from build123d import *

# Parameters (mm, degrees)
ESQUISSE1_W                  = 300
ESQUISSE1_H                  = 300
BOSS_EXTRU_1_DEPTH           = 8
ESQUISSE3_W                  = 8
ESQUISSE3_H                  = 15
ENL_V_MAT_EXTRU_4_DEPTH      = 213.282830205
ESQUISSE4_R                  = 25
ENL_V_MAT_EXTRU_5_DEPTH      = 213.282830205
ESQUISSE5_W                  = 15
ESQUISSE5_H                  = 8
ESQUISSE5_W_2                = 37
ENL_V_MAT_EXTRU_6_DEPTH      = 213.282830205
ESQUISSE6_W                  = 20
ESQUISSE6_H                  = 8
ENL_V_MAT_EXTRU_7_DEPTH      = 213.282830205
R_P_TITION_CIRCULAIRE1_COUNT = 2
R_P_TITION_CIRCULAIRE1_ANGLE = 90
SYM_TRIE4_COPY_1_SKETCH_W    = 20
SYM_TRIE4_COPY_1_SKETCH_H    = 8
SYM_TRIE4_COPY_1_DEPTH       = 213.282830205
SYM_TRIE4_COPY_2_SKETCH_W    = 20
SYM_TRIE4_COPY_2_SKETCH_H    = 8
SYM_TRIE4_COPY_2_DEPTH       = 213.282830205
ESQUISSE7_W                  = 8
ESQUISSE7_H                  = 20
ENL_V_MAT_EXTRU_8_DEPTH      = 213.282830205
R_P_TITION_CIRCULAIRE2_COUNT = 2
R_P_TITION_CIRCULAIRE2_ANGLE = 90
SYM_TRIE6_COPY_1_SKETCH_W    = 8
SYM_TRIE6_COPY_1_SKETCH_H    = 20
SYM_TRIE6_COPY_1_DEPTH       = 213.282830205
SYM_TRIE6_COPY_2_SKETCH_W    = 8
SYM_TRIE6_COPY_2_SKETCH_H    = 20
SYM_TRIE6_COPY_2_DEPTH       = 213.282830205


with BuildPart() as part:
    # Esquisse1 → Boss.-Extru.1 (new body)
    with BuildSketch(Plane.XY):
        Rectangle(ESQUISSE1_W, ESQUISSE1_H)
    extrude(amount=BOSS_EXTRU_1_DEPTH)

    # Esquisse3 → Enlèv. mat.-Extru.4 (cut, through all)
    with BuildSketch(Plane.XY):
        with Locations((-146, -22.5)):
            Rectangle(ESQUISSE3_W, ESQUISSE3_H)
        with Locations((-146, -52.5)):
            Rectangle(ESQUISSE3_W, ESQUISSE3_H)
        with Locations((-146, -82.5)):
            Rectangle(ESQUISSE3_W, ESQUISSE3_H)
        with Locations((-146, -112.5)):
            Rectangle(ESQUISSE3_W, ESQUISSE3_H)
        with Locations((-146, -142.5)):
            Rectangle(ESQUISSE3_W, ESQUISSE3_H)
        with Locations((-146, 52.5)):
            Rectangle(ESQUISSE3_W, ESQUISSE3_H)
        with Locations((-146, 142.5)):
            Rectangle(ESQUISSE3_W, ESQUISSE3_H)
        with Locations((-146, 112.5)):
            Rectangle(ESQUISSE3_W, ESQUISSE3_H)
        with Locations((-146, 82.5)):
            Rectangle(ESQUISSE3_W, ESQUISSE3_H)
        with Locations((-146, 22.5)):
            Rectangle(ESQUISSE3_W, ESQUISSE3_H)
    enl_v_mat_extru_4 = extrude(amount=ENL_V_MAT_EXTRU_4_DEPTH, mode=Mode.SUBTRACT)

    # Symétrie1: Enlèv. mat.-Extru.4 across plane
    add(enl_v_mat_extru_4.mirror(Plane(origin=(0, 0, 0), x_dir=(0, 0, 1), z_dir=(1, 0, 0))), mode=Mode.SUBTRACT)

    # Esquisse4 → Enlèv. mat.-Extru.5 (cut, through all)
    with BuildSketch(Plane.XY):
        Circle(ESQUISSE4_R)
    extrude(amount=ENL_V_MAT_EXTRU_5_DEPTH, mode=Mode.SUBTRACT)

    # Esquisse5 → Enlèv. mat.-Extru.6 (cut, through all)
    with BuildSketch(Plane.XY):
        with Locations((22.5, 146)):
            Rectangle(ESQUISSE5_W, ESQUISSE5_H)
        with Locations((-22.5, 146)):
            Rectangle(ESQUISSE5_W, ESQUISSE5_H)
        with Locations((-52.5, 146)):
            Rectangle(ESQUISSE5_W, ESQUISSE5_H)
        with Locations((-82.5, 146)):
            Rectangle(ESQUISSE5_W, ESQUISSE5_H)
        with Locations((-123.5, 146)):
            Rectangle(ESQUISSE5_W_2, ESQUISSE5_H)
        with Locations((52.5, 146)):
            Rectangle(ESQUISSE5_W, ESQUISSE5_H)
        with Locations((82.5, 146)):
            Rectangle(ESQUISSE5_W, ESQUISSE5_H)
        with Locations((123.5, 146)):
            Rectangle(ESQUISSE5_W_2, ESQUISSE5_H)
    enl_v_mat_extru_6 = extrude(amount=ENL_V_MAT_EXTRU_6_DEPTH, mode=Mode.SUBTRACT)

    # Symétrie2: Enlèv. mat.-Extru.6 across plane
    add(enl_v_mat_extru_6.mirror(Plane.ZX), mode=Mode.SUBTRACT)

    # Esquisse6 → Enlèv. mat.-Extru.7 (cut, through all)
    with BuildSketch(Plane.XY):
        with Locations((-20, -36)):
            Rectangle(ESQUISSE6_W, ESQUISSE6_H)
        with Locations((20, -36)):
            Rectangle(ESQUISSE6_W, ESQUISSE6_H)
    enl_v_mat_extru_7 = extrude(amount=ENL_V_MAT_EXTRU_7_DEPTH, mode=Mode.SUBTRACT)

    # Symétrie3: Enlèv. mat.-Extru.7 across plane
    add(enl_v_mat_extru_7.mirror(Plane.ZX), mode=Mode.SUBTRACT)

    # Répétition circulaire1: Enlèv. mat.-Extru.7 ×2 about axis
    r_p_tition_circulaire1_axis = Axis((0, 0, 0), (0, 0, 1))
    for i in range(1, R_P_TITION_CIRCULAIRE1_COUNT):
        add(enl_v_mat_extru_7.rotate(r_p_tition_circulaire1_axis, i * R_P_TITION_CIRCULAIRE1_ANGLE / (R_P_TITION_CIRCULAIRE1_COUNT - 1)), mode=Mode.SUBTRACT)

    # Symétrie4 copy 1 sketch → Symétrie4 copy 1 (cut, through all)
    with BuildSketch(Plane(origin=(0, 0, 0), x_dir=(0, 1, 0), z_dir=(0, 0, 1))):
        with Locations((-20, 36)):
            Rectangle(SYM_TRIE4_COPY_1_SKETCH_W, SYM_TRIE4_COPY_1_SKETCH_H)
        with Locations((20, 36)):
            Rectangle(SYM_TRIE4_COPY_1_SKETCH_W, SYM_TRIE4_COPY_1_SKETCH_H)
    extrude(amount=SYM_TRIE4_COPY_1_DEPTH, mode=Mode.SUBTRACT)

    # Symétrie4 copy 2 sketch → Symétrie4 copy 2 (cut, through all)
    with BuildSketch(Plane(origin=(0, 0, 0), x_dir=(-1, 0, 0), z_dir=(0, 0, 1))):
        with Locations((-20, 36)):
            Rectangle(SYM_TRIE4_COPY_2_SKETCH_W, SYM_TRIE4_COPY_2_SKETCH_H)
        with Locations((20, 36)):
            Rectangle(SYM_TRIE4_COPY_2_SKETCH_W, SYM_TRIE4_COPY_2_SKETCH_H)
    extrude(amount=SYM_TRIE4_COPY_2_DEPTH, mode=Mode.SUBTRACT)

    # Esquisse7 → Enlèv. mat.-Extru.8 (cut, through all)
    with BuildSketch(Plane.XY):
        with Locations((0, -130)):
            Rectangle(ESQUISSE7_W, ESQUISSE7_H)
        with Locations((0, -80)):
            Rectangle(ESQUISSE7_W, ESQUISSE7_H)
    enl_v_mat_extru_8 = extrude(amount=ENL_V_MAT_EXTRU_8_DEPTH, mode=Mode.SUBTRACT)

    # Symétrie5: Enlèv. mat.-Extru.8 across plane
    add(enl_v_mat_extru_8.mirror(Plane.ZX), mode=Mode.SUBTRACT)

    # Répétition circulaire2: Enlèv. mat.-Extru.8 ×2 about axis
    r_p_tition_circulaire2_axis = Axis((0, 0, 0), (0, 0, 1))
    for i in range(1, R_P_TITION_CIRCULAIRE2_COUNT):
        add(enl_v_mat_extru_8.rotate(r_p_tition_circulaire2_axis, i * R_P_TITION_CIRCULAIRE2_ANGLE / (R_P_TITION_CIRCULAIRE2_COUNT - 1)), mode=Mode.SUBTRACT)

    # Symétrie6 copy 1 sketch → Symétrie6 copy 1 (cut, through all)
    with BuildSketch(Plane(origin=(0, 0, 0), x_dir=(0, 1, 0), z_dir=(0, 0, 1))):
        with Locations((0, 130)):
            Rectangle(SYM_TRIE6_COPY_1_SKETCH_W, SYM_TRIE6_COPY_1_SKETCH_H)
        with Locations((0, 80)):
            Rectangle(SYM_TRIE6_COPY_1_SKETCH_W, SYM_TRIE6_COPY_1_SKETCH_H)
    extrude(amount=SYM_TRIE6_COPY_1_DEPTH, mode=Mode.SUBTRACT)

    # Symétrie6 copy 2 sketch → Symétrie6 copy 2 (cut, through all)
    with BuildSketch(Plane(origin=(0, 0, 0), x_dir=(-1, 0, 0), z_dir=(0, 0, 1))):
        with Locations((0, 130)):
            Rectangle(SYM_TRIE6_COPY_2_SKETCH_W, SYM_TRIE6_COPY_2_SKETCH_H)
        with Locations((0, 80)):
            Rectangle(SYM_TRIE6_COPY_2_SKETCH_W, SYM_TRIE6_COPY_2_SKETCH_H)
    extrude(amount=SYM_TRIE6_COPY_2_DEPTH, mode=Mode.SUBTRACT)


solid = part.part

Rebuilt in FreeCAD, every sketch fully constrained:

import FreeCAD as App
import Part
import Sketcher
from FreeCAD import Vector
Q = App.Units.Quantity


def add_polygon(sketch, points):
    """Adds a closed chain of lines whose ends are joined by coincident constraints."""
    first, n = sketch.GeometryCount, len(points)
    for a, b in zip(points, points[1:] + points[:1]):
        sketch.addGeometry(Part.LineSegment(App.Vector(*a, 0), App.Vector(*b, 0)), False)
    for i in range(n):
        sketch.addConstraint(Sketcher.Constraint("Coincident", first + i, 2, first + (i + 1) % n, 1))

doc = App.newDocument("Part")
body = doc.addObject("PartDesign::Body", "Body")

# Sketch on XY plane
sketch1 = body.newObject("Sketcher::SketchObject", "Sketch")
sketch1.AttachmentSupport = (doc.getObject("XY_Plane"), [""])
sketch1.MapMode = "FlatFace"
add_polygon(sketch1, [(-150, 150), (-150, -150), (150, -150), (150, 150)])  # lines 0-3
sketch1.addConstraint([
    Sketcher.Constraint("Vertical", 0),
    Sketcher.Constraint("Horizontal", 1),
    Sketcher.Constraint("Vertical", 2),
    Sketcher.Constraint("Horizontal", 3),
    Sketcher.Constraint("Symmetric", 0, 2, 2, 2, -1, 1),
    Sketcher.Constraint("Equal", 3, 0),
    Sketcher.Constraint("DistanceX", 1, 1, 1, 2, Q("300 mm")),
])
pad1 = body.newObject("PartDesign::Pad", "Pad")
pad1.Profile = sketch1
pad1.Length = 8

# Sketch on XY plane
sketch2 = body.newObject("Sketcher::SketchObject", "Sketch001")
sketch2.AttachmentSupport = (doc.getObject("XY_Plane"), [""])
sketch2.MapMode = "FlatFace"
add_polygon(sketch2, [(-150, -15), (-150, -30), (-142, -30), (-142, -15)])  # lines 0-3
add_polygon(sketch2, [(-150, -45), (-150, -60), (-142, -60), (-142, -45)])  # lines 4-7
add_polygon(sketch2, [(-150, -75), (-150, -90), (-142, -90), (-142, -75)])  # lines 8-11
add_polygon(sketch2, [(-150, -105), (-150, -120), (-142, -120), (-142, -105)])  # lines 12-15
add_polygon(sketch2, [(-150, -135), (-150, -150), (-142, -150), (-142, -135)])  # lines 16-19
add_polygon(sketch2, [(-150, 60), (-150, 45), (-142, 45), (-142, 60)])  # lines 20-23
add_polygon(sketch2, [(-150, 150), (-150, 135), (-142, 135), (-142, 150)])  # lines 24-27
add_polygon(sketch2, [(-150, 120), (-150, 105), (-142, 105), (-142, 120)])  # lines 28-31
add_polygon(sketch2, [(-150, 90), (-150, 75), (-142, 75), (-142, 90)])  # lines 32-35
add_polygon(sketch2, [(-150, 30), (-150, 15), (-142, 15), (-142, 30)])  # lines 36-39
sketch2.addConstraint([
    Sketcher.Constraint("Vertical", 0),
    Sketcher.Constraint("Horizontal", 1),
    Sketcher.Constraint("Vertical", 2),
    Sketcher.Constraint("Horizontal", 3),
    Sketcher.Constraint("Vertical", 4),
    Sketcher.Constraint("Horizontal", 5),
    Sketcher.Constraint("Vertical", 6),
    Sketcher.Constraint("Horizontal", 7),
    Sketcher.Constraint("Vertical", 8),
    Sketcher.Constraint("Horizontal", 9),
    Sketcher.Constraint("Vertical", 10),
    Sketcher.Constraint("Horizontal", 11),
    Sketcher.Constraint("Vertical", 12),
    Sketcher.Constraint("Horizontal", 13),
    Sketcher.Constraint("Vertical", 14),
    Sketcher.Constraint("Horizontal", 15),
    Sketcher.Constraint("Vertical", 16),
    Sketcher.Constraint("Horizontal", 17),
    Sketcher.Constraint("Vertical", 18),
    Sketcher.Constraint("Horizontal", 19),
    Sketcher.Constraint("Vertical", 20),
    Sketcher.Constraint("Horizontal", 21),
    Sketcher.Constraint("Vertical", 22),
    Sketcher.Constraint("Horizontal", 23),
    Sketcher.Constraint("Vertical", 24),
    Sketcher.Constraint("Horizontal", 25),
    Sketcher.Constraint("Vertical", 26),
    Sketcher.Constraint("Horizontal", 27),
    Sketcher.Constraint("Vertical", 28),
    Sketcher.Constraint("Horizontal", 29),
    Sketcher.Constraint("Vertical", 30),
    Sketcher.Constraint("Horizontal", 31),
    Sketcher.Constraint("Vertical", 32),
    Sketcher.Constraint("Horizontal", 33),
    Sketcher.Constraint("Vertical", 34),
    Sketcher.Constraint("Horizontal", 35),
    Sketcher.Constraint("Vertical", 36),
    Sketcher.Constraint("Horizontal", 37),
    Sketcher.Constraint("Vertical", 38),
    Sketcher.Constraint("Horizontal", 39),
    Sketcher.Constraint("Symmetric", 7, 2, 20, 2, -1),
    Sketcher.Constraint("Symmetric", 5, 2, 22, 2, -1),
    Sketcher.Constraint("Symmetric", 19, 2, 24, 2, -1),
    Sketcher.Constraint("Symmetric", 17, 2, 26, 2, -1),
    Sketcher.Constraint("Symmetric", 15, 2, 28, 2, -1),
    Sketcher.Constraint("Symmetric", 13, 2, 30, 2, -1),
    Sketcher.Constraint("Symmetric", 11, 2, 32, 2, -1),
    Sketcher.Constraint("Symmetric", 9, 2, 34, 2, -1),
    Sketcher.Constraint("Symmetric", 3, 2, 36, 2, -1),
    Sketcher.Constraint("Symmetric", 1, 2, 38, 2, -1),
    Sketcher.Constraint("Vertical", 3, 2, 4, 2),
    Sketcher.Constraint("Vertical", 2, 2, 5, 2),
    Sketcher.Constraint("Vertical", 7, 2, 8, 2),
    Sketcher.Constraint("Vertical", 6, 2, 9, 2),
    Sketcher.Constraint("Vertical", 11, 2, 12, 2),
    Sketcher.Constraint("Vertical", 10, 2, 13, 2),
    Sketcher.Constraint("Vertical", 15, 2, 16, 2),
    Sketcher.Constraint("Vertical", 14, 2, 17, 2),
    Sketcher.Constraint("Equal", 2, 4),
    Sketcher.Constraint("Equal", 6, 8),
    Sketcher.Constraint("Equal", 10, 12),
    Sketcher.Constraint("Equal", 14, 16),
    Sketcher.Constraint("DistanceX", 1, 1, 1, 2, Q("8 mm")),
    Sketcher.Constraint("DistanceY", 0, 2, 0, 1, Q("15 mm")),
    Sketcher.Constraint("DistanceX", 0, 2, -1, 1, Q("150 mm")),
    Sketcher.Constraint("DistanceY", 0, 2, -1, 1, Q("30 mm")),
    Sketcher.Constraint("DistanceY", 4, 2, -1, 1, Q("60 mm")),
    Sketcher.Constraint("DistanceY", 8, 2, -1, 1, Q("90 mm")),
    Sketcher.Constraint("DistanceY", 12, 2, -1, 1, Q("120 mm")),
    Sketcher.Constraint("DistanceY", 16, 2, -1, 1, Q("150 mm")),
])
pocket1 = body.newObject("PartDesign::Pocket", "Pocket")
pocket1.Profile = sketch2
pocket1.Type = "ThroughAll"
pocket1.Reversed = True
doc.recompute()

mirrored = body.newObject("PartDesign::Mirrored", "Mirrored")
mirrored.Originals = [pocket1]
mirrored.MirrorPlane = (doc.getObject("YZ_Plane"), [""])
body.Tip = mirrored

# Sketch on XY plane
sketch3 = body.newObject("Sketcher::SketchObject", "Sketch002")
sketch3.AttachmentSupport = (doc.getObject("XY_Plane"), [""])
sketch3.MapMode = "FlatFace"
sketch3.addGeometry(Part.Circle(Vector(0, 0, 0), Vector(0, 0, 1), 25), False)
sketch3.addConstraint([
    Sketcher.Constraint("Coincident", 0, 3, -1, 1),
    Sketcher.Constraint("Diameter", 0, Q("50 mm")),
])
pocket2 = body.newObject("PartDesign::Pocket", "Pocket001")
pocket2.Profile = sketch3
pocket2.Type = "ThroughAll"
pocket2.Reversed = True

# Sketch on XY plane
sketch4 = body.newObject("Sketcher::SketchObject", "Sketch003")
sketch4.AttachmentSupport = (doc.getObject("XY_Plane"), [""])
sketch4.MapMode = "FlatFace"
add_polygon(sketch4, [(15, 150), (15, 142), (30, 142), (30, 150)])  # lines 0-3
add_polygon(sketch4, [(-30, 150), (-30, 142), (-15, 142), (-15, 150)])  # lines 4-7
add_polygon(sketch4, [(-60, 150), (-60, 142), (-45, 142), (-45, 150)])  # lines 8-11
add_polygon(sketch4, [(-90, 150), (-90, 142), (-75, 142), (-75, 150)])  # lines 12-15
add_polygon(sketch4, [(-142, 150), (-142, 142), (-105, 142), (-105, 150)])  # lines 16-19
add_polygon(sketch4, [(45, 150), (45, 142), (60, 142), (60, 150)])  # lines 20-23
add_polygon(sketch4, [(75, 150), (75, 142), (90, 142), (90, 150)])  # lines 24-27
add_polygon(sketch4, [(105, 150), (105, 142), (142, 142), (142, 150)])  # lines 28-31
sketch4.addConstraint([
    Sketcher.Constraint("Vertical", 0),
    Sketcher.Constraint("Horizontal", 1),
    Sketcher.Constraint("Vertical", 2),
    Sketcher.Constraint("Horizontal", 3),
    Sketcher.Constraint("Vertical", 4),
    Sketcher.Constraint("Horizontal", 5),
    Sketcher.Constraint("Vertical", 6),
    Sketcher.Constraint("Horizontal", 7),
    Sketcher.Constraint("Vertical", 8),
    Sketcher.Constraint("Horizontal", 9),
    Sketcher.Constraint("Vertical", 10),
    Sketcher.Constraint("Horizontal", 11),
    Sketcher.Constraint("Vertical", 12),
    Sketcher.Constraint("Horizontal", 13),
    Sketcher.Constraint("Vertical", 14),
    Sketcher.Constraint("Horizontal", 15),
    Sketcher.Constraint("Vertical", 16),
    Sketcher.Constraint("Horizontal", 17),
    Sketcher.Constraint("Vertical", 18),
    Sketcher.Constraint("Horizontal", 19),
    Sketcher.Constraint("Vertical", 20),
    Sketcher.Constraint("Horizontal", 21),
    Sketcher.Constraint("Vertical", 22),
    Sketcher.Constraint("Horizontal", 23),
    Sketcher.Constraint("Vertical", 24),
    Sketcher.Constraint("Horizontal", 25),
    Sketcher.Constraint("Vertical", 26),
    Sketcher.Constraint("Horizontal", 27),
    Sketcher.Constraint("Vertical", 28),
    Sketcher.Constraint("Horizontal", 29),
    Sketcher.Constraint("Vertical", 30),
    Sketcher.Constraint("Horizontal", 31),
    Sketcher.Constraint("Symmetric", 1, 2, 4, 2, -2),
    Sketcher.Constraint("Symmetric", 3, 2, 6, 2, -2),
    Sketcher.Constraint("Symmetric", 9, 2, 20, 2, -2),
    Sketcher.Constraint("Symmetric", 11, 2, 22, 2, -2),
    Sketcher.Constraint("Symmetric", 13, 2, 24, 2, -2),
    Sketcher.Constraint("Symmetric", 15, 2, 26, 2, -2),
    Sketcher.Constraint("Symmetric", 17, 2, 28, 2, -2),
    Sketcher.Constraint("Symmetric", 19, 2, 30, 2, -2),
    Sketcher.Constraint("Horizontal", 5, 2, 8, 2),
    Sketcher.Constraint("Horizontal", 7, 2, 10, 2),
    Sketcher.Constraint("Horizontal", 9, 2, 12, 2),
    Sketcher.Constraint("Horizontal", 11, 2, 14, 2),
    Sketcher.Constraint("Horizontal", 13, 2, 16, 2),
    Sketcher.Constraint("Horizontal", 15, 2, 18, 2),
    Sketcher.Constraint("Equal", 7, 9),
    Sketcher.Constraint("Equal", 11, 13),
    Sketcher.Constraint("DistanceX", 1, 1, 1, 2, Q("15 mm")),
    Sketcher.Constraint("DistanceX", 17, 1, 17, 2, Q("37 mm")),
    Sketcher.Constraint("DistanceY", 0, 2, 0, 1, Q("8 mm")),
    Sketcher.Constraint("DistanceX", -1, 1, 0, 2, Q("15 mm")),
    Sketcher.Constraint("DistanceY", -1, 1, 0, 2, Q("142 mm")),
    Sketcher.Constraint("DistanceX", 8, 2, -1, 1, Q("60 mm")),
    Sketcher.Constraint("DistanceX", 12, 2, -1, 1, Q("90 mm")),
    Sketcher.Constraint("DistanceX", 16, 2, -1, 1, Q("142 mm")),
])
pocket3 = body.newObject("PartDesign::Pocket", "Pocket002")
pocket3.Profile = sketch4
pocket3.Type = "ThroughAll"
pocket3.Reversed = True
doc.recompute()

mirrored2 = body.newObject("PartDesign::Mirrored", "Mirrored001")
mirrored2.Originals = [pocket3]
mirrored2.MirrorPlane = (doc.getObject("XZ_Plane"), [""])
body.Tip = mirrored2

# Sketch on XY plane
sketch5 = body.newObject("Sketcher::SketchObject", "Sketch004")
sketch5.AttachmentSupport = (doc.getObject("XY_Plane"), [""])
sketch5.MapMode = "FlatFace"
add_polygon(sketch5, [(-30, -32), (-30, -40), (-10, -40), (-10, -32)])  # lines 0-3
add_polygon(sketch5, [(10, -32), (10, -40), (30, -40), (30, -32)])  # lines 4-7
sketch5.addConstraint([
    Sketcher.Constraint("Vertical", 0),
    Sketcher.Constraint("Horizontal", 1),
    Sketcher.Constraint("Vertical", 2),
    Sketcher.Constraint("Horizontal", 3),
    Sketcher.Constraint("Vertical", 4),
    Sketcher.Constraint("Horizontal", 5),
    Sketcher.Constraint("Vertical", 6),
    Sketcher.Constraint("Horizontal", 7),
    Sketcher.Constraint("Symmetric", 1, 2, 4, 2, -2),
    Sketcher.Constraint("Symmetric", 3, 2, 6, 2, -2),
    Sketcher.Constraint("DistanceX", 1, 1, 1, 2, Q("20 mm")),
    Sketcher.Constraint("DistanceY", 0, 2, 0, 1, Q("8 mm")),
    Sketcher.Constraint("DistanceX", 0, 2, -1, 1, Q("30 mm")),
    Sketcher.Constraint("DistanceY", 0, 2, -1, 1, Q("40 mm")),
])
pocket4 = body.newObject("PartDesign::Pocket", "Pocket003")
pocket4.Profile = sketch5
pocket4.Type = "ThroughAll"
pocket4.Reversed = True
doc.recompute()

mirrored3 = body.newObject("PartDesign::Mirrored", "Mirrored002")
mirrored3.Originals = [pocket4]
mirrored3.MirrorPlane = (doc.getObject("XZ_Plane"), [""])
body.Tip = mirrored3
doc.recompute()

polarpattern = body.newObject("PartDesign::PolarPattern", "PolarPattern")
polarpattern.Originals = [pocket4]
polarpattern.Axis = (doc.getObject("Z_Axis"), [""])
polarpattern.Angle = 90
polarpattern.Occurrences = 2
body.Tip = polarpattern

# Sketch on XY plane
sketch6 = body.newObject("Sketcher::SketchObject", "Sketch005")
sketch6.AttachmentSupport = (doc.getObject("XY_Plane"), [""])
sketch6.MapMode = "FlatFace"
add_polygon(sketch6, [(-40, -30), (-32, -30), (-32, -10), (-40, -10)])  # lines 0-3
add_polygon(sketch6, [(-40, 10), (-32, 10), (-32, 30), (-40, 30)])  # lines 4-7
sketch6.addConstraint([
    Sketcher.Constraint("Horizontal", 0),
    Sketcher.Constraint("Vertical", 1),
    Sketcher.Constraint("Horizontal", 2),
    Sketcher.Constraint("Vertical", 3),
    Sketcher.Constraint("Horizontal", 4),
    Sketcher.Constraint("Vertical", 5),
    Sketcher.Constraint("Horizontal", 6),
    Sketcher.Constraint("Vertical", 7),
    Sketcher.Constraint("Symmetric", 1, 2, 4, 2, -1),
    Sketcher.Constraint("Symmetric", 3, 2, 6, 2, -1),
    Sketcher.Constraint("DistanceX", 0, 1, 0, 2, Q("8 mm")),
    Sketcher.Constraint("DistanceY", 1, 1, 1, 2, Q("20 mm")),
    Sketcher.Constraint("DistanceX", 0, 2, -1, 1, Q("32 mm")),
    Sketcher.Constraint("DistanceY", 0, 2, -1, 1, Q("30 mm")),
])
pocket5 = body.newObject("PartDesign::Pocket", "Pocket004")
pocket5.Profile = sketch6
pocket5.Type = "ThroughAll"
pocket5.Reversed = True

# Sketch on XY plane
sketch7 = body.newObject("Sketcher::SketchObject", "Sketch006")
sketch7.AttachmentSupport = (doc.getObject("XY_Plane"), [""])
sketch7.MapMode = "FlatFace"
add_polygon(sketch7, [(30, -40), (30, -32), (10, -32), (10, -40)])  # lines 0-3
add_polygon(sketch7, [(-10, -40), (-10, -32), (-30, -32), (-30, -40)])  # lines 4-7
sketch7.addConstraint([
    Sketcher.Constraint("Vertical", 0),
    Sketcher.Constraint("Horizontal", 1),
    Sketcher.Constraint("Vertical", 2),
    Sketcher.Constraint("Horizontal", 3),
    Sketcher.Constraint("Vertical", 4),
    Sketcher.Constraint("Horizontal", 5),
    Sketcher.Constraint("Vertical", 6),
    Sketcher.Constraint("Horizontal", 7),
    Sketcher.Constraint("Symmetric", 1, 2, 4, 2, -2),
    Sketcher.Constraint("Symmetric", 3, 2, 6, 2, -2),
    Sketcher.Constraint("DistanceX", 1, 2, 1, 1, Q("20 mm")),
    Sketcher.Constraint("DistanceY", 0, 1, 0, 2, Q("8 mm")),
    Sketcher.Constraint("DistanceX", -1, 1, 0, 2, Q("30 mm")),
    Sketcher.Constraint("DistanceY", 0, 2, -1, 1, Q("32 mm")),
])
pocket6 = body.newObject("PartDesign::Pocket", "Pocket005")
pocket6.Profile = sketch7
pocket6.Type = "ThroughAll"
pocket6.Reversed = True

# Sketch on XY plane
sketch8 = body.newObject("Sketcher::SketchObject", "Sketch007")
sketch8.AttachmentSupport = (doc.getObject("XY_Plane"), [""])
sketch8.MapMode = "FlatFace"
add_polygon(sketch8, [(-4, -120), (-4, -140), (4, -140), (4, -120)])  # lines 0-3
add_polygon(sketch8, [(-4, -70), (-4, -90), (4, -90), (4, -70)])  # lines 4-7
sketch8.addConstraint([
    Sketcher.Constraint("Vertical", 0),
    Sketcher.Constraint("Horizontal", 1),
    Sketcher.Constraint("Vertical", 2),
    Sketcher.Constraint("Horizontal", 3),
    Sketcher.Constraint("Vertical", 4),
    Sketcher.Constraint("Horizontal", 5),
    Sketcher.Constraint("Vertical", 6),
    Sketcher.Constraint("Horizontal", 7),
    Sketcher.Constraint("Vertical", 3, 2, 4, 2),
    Sketcher.Constraint("Vertical", 2, 2, 5, 2),
    Sketcher.Constraint("Equal", 2, 4),
    Sketcher.Constraint("DistanceX", 1, 1, 1, 2, Q("8 mm")),
    Sketcher.Constraint("DistanceY", 0, 2, 0, 1, Q("20 mm")),
    Sketcher.Constraint("DistanceX", 0, 2, -1, 1, Q("4 mm")),
    Sketcher.Constraint("DistanceY", 0, 2, -1, 1, Q("140 mm")),
    Sketcher.Constraint("DistanceY", 4, 2, -1, 1, Q("90 mm")),
])
pocket7 = body.newObject("PartDesign::Pocket", "Pocket006")
pocket7.Profile = sketch8
pocket7.Type = "ThroughAll"
pocket7.Reversed = True
doc.recompute()

mirrored4 = body.newObject("PartDesign::Mirrored", "Mirrored003")
mirrored4.Originals = [pocket7]
mirrored4.MirrorPlane = (doc.getObject("XZ_Plane"), [""])
body.Tip = mirrored4
doc.recompute()

polarpattern2 = body.newObject("PartDesign::PolarPattern", "PolarPattern001")
polarpattern2.Originals = [pocket7]
polarpattern2.Axis = (doc.getObject("Z_Axis"), [""])
polarpattern2.Angle = 90
polarpattern2.Occurrences = 2
body.Tip = polarpattern2

# Sketch on XY plane
sketch9 = body.newObject("Sketcher::SketchObject", "Sketch008")
sketch9.AttachmentSupport = (doc.getObject("XY_Plane"), [""])
sketch9.MapMode = "FlatFace"
add_polygon(sketch9, [(-140, -4), (-120, -4), (-120, 4), (-140, 4)])  # lines 0-3
add_polygon(sketch9, [(-90, -4), (-70, -4), (-70, 4), (-90, 4)])  # lines 4-7
sketch9.addConstraint([
    Sketcher.Constraint("Horizontal", 0),
    Sketcher.Constraint("Vertical", 1),
    Sketcher.Constraint("Horizontal", 2),
    Sketcher.Constraint("Vertical", 3),
    Sketcher.Constraint("Horizontal", 4),
    Sketcher.Constraint("Vertical", 5),
    Sketcher.Constraint("Horizontal", 6),
    Sketcher.Constraint("Vertical", 7),
    Sketcher.Constraint("Horizontal", 3, 2, 4, 2),
    Sketcher.Constraint("Horizontal", 2, 2, 5, 2),
    Sketcher.Constraint("Equal", 2, 4),
    Sketcher.Constraint("DistanceX", 0, 1, 0, 2, Q("20 mm")),
    Sketcher.Constraint("DistanceY", 1, 1, 1, 2, Q("8 mm")),
    Sketcher.Constraint("DistanceX", 0, 2, -1, 1, Q("120 mm")),
    Sketcher.Constraint("DistanceY", 0, 2, -1, 1, Q("4 mm")),
    Sketcher.Constraint("DistanceX", 4, 2, -1, 1, Q("70 mm")),
])
pocket8 = body.newObject("PartDesign::Pocket", "Pocket007")
pocket8.Profile = sketch9
pocket8.Type = "ThroughAll"
pocket8.Reversed = True

# Sketch on XY plane
sketch10 = body.newObject("Sketcher::SketchObject", "Sketch009")
sketch10.AttachmentSupport = (doc.getObject("XY_Plane"), [""])
sketch10.MapMode = "FlatFace"
add_polygon(sketch10, [(4, -140), (4, -120), (-4, -120), (-4, -140)])  # lines 0-3
add_polygon(sketch10, [(4, -90), (4, -70), (-4, -70), (-4, -90)])  # lines 4-7
sketch10.addConstraint([
    Sketcher.Constraint("Vertical", 0),
    Sketcher.Constraint("Horizontal", 1),
    Sketcher.Constraint("Vertical", 2),
    Sketcher.Constraint("Horizontal", 3),
    Sketcher.Constraint("Vertical", 4),
    Sketcher.Constraint("Horizontal", 5),
    Sketcher.Constraint("Vertical", 6),
    Sketcher.Constraint("Horizontal", 7),
    Sketcher.Constraint("Vertical", 3, 2, 4, 2),
    Sketcher.Constraint("Vertical", 2, 2, 5, 2),
    Sketcher.Constraint("Equal", 2, 4),
    Sketcher.Constraint("DistanceX", 1, 2, 1, 1, Q("8 mm")),
    Sketcher.Constraint("DistanceY", 0, 1, 0, 2, Q("20 mm")),
    Sketcher.Constraint("DistanceX", -1, 1, 0, 2, Q("4 mm")),
    Sketcher.Constraint("DistanceY", 0, 2, -1, 1, Q("120 mm")),
    Sketcher.Constraint("DistanceY", 4, 2, -1, 1, Q("70 mm")),
])
pocket9 = body.newObject("PartDesign::Pocket", "Pocket008")
pocket9.Profile = sketch10
pocket9.Type = "ThroughAll"
pocket9.Reversed = True

doc.recompute()
